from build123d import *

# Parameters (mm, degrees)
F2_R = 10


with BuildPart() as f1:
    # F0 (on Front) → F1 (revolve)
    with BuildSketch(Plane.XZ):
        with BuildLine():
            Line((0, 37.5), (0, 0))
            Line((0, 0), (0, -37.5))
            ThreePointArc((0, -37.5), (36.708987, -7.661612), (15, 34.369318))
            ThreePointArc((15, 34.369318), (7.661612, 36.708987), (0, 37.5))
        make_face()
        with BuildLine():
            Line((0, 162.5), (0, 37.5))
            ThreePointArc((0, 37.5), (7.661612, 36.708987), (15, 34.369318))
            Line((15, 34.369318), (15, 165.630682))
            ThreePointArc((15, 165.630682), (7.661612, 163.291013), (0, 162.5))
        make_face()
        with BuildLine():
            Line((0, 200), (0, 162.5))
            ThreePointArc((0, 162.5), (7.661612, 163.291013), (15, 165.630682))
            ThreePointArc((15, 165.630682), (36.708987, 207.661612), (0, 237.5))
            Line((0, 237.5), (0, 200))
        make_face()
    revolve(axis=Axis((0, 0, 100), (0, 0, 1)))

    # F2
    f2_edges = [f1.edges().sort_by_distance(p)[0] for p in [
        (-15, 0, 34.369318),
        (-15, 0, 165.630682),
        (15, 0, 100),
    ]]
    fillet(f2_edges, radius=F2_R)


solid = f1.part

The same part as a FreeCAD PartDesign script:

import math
import FreeCAD as App
import Part
import Sketcher
from FreeCAD import Vector


def edges_at(feature, points):
    """Names of the edges that pass closest to the given points."""
    edges = feature.Shape.Edges
    near = lambda p: min(range(len(edges)), key=lambda i: edges[i].distToShape(Part.Vertex(*p))[0])
    return sorted({f"Edge{near(p) + 1}" for p in points})

doc = App.newDocument("Part")
params = doc.addObject("Spreadsheet::Sheet", "Params")
for row, (alias, value) in enumerate([
    ("sketch1_radius", "37.5 mm"),
    ("sketch1_height", "275 mm"),
    ("revolution_angle", "360 deg"),
    ("fillet_radius", "10 mm"),
], start=1):
    params.set(f"A{row}", alias)
    params.set(f"B{row}", "=" + value)
    params.setAlias(f"B{row}", alias)

body = doc.addObject("PartDesign::Body", "Body")

sketch1 = body.newObject("Sketcher::SketchObject", "Sketch")
sketch1.AttachmentSupport = (doc.getObject("XZ_Plane"), [""])
sketch1.MapMode = "FlatFace"
sketch1.addGeometry(Part.ArcOfCircle(Part.Circle(Vector(0, 0, 0), Vector(0, 0, 1), 38), math.radians(-90), math.radians(66)), False)
sketch1.addGeometry(Part.LineSegment(Vector(15, 34, 0), Vector(15, 166, 0)), False)
sketch1.addGeometry(Part.ArcOfCircle(Part.Circle(Vector(0, 200, 0), Vector(0, 0, 1), 38), math.radians(-66), math.radians(90)), False)
sketch1.addGeometry(Part.LineSegment(Vector(0, 238, 0), Vector(0, -38, 0)), False)
sketch1.addConstraint(Sketcher.Constraint("Coincident", 0, 2, 1, 1))
sketch1.addConstraint(Sketcher.Constraint("Coincident", 1, 2, 2, 1))
sketch1.addConstraint(Sketcher.Constraint("Coincident", 2, 2, 3, 1))
sketch1.addConstraint(Sketcher.Constraint("Coincident", 3, 2, 0, 1))
sketch1.addConstraint(Sketcher.Constraint("Vertical", 1))
sketch1.addConstraint(Sketcher.Constraint("Vertical", 3))
sketch1.addConstraint(Sketcher.Constraint("Coincident", 0, 3, -1, 1))
sketch1.addConstraint(Sketcher.Constraint("Equal", 0, 2))
sketch1.addConstraint(Sketcher.Constraint("PointOnObject", 2, 3, -2))
sketch1.addConstraint(Sketcher.Constraint("PointOnObject", 2, 2, -2))
sketch1.addConstraint(Sketcher.Constraint("Radius", 0, 37.5))
sketch1.addConstraint(Sketcher.Constraint("DistanceY", 3, 2, 3, 1, 275.0))
sketch1.addConstraint(Sketcher.Constraint("DistanceX", -1, 1, 0, 2, 15.0))
sketch1.setExpression("Constraints[10]", "Params.sketch1_radius")
sketch1.setExpression("Constraints[11]", "Params.sketch1_height")
revolution = body.newObject("PartDesign::Revolution", "Revolution")
revolution.Profile = sketch1
revolution.ReferenceAxis = (sketch1, ["V_Axis"])
revolution.setExpression("Angle", "Params.revolution_angle")
doc.recompute()

fillet = body.newObject("PartDesign::Fillet", "Fillet")
fillet.Base = (revolution, edges_at(revolution, [(-15, 0, 34.369), (-15, 0, 165.631), (15, 0, 100)]))
fillet.setExpression("Radius", "Params.fillet_radius")

doc.recompute()
